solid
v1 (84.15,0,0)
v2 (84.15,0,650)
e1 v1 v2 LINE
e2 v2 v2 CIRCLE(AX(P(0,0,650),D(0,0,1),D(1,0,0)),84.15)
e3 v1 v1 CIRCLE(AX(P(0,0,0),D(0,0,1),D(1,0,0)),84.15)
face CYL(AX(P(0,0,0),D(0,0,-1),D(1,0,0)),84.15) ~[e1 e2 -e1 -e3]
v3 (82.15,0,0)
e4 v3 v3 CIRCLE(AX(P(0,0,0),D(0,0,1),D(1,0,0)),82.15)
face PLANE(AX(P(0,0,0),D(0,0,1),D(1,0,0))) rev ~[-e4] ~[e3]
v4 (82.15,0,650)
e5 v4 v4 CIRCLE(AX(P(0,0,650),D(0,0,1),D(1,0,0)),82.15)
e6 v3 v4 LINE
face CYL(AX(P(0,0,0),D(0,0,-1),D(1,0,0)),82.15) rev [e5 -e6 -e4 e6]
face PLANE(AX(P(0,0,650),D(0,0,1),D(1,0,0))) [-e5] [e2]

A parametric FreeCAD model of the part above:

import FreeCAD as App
import Part
import Sketcher
from FreeCAD import Vector
Q = App.Units.Quantity

doc = App.newDocument("Part")
body = doc.addObject("PartDesign::Body", "Body")

# Sketch on XY plane
sketch1 = doc.addObject("Sketcher::SketchObject", "Sketch")
body.addObject(sketch1)
sketch1.AttachmentSupport = (doc.XY_Plane, [""])
sketch1.MapMode = "FlatFace"
sketch1.addGeometry([
    Part.Circle(Vector(0, 0, 0), Vector(0, 0, 1), 84),
    Part.Circle(Vector(0, 0, 0), Vector(0, 0, 1), 82),
], False)
sketch1.addConstraint([
    Sketcher.Constraint("Coincident", 0, 3, -1, 1),
    Sketcher.Constraint("Coincident", 1, 3, -1, 1),
    Sketcher.Constraint("Diameter", 0, Q("168.3 mm")),
    Sketcher.Constraint("Diameter", 1, Q("164.3 mm")),
])
pad1 = doc.addObject("PartDesign::Pad", "Pad")
body.addObject(pad1)
pad1.Profile = sketch1
pad1.Length = 650

doc.recompute()
